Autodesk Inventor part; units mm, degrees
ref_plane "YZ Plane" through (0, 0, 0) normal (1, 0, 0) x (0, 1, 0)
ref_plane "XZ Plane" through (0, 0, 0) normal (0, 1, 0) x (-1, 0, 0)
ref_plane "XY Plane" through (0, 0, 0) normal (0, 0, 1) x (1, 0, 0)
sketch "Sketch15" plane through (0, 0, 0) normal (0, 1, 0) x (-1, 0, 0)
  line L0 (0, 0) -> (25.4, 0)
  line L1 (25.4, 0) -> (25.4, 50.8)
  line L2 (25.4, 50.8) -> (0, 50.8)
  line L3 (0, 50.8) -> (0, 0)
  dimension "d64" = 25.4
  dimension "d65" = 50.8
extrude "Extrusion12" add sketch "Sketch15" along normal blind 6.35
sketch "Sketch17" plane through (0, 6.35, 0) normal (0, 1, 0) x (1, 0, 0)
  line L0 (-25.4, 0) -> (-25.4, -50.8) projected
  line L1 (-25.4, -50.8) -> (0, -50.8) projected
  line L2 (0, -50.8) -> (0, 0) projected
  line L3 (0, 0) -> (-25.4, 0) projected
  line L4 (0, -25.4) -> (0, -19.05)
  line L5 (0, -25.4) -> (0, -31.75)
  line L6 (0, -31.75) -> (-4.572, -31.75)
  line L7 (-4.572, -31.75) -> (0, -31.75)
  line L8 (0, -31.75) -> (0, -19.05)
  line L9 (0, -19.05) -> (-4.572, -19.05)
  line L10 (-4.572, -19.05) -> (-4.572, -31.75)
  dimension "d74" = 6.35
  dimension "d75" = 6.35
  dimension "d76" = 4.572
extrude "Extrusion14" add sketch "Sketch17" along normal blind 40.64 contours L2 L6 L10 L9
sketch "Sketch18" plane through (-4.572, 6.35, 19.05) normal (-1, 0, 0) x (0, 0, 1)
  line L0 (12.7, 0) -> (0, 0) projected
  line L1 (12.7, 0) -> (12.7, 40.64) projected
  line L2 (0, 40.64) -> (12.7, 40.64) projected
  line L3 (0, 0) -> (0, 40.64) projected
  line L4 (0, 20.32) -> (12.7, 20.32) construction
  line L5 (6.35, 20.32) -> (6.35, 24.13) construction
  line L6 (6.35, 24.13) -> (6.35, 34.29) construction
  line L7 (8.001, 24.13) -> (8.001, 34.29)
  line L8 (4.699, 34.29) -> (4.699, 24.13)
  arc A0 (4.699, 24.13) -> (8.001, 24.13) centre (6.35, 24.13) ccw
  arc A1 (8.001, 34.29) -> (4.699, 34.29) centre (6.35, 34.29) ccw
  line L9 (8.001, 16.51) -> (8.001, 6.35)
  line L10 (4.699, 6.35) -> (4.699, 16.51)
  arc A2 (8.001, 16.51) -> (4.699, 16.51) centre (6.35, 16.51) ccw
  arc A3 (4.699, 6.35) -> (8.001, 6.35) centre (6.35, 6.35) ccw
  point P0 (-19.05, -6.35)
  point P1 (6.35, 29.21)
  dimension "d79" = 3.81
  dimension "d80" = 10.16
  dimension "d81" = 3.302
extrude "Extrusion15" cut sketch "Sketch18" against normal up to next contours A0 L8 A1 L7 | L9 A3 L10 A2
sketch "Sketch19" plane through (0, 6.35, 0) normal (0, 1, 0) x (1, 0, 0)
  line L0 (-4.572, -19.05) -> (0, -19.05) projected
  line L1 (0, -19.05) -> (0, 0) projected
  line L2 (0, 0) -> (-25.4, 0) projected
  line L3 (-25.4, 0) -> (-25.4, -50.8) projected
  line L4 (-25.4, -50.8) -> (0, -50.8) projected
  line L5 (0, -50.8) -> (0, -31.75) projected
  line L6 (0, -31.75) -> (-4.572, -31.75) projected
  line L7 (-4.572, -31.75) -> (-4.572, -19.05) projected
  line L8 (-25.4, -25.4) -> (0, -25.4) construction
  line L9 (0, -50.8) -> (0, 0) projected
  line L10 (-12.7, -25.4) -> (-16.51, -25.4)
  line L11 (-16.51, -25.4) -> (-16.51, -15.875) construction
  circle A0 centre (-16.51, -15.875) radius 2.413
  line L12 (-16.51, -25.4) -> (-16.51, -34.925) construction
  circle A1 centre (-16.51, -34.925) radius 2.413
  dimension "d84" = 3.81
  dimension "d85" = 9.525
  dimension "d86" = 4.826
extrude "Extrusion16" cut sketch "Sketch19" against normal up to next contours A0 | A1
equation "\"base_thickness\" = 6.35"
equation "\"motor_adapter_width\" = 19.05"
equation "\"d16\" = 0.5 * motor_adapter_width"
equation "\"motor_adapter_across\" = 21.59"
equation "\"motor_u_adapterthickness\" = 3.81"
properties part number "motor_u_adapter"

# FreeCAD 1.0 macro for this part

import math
import FreeCAD as App
import Part
import Sketcher
from FreeCAD import Vector
Q = App.Units.Quantity

doc = App.newDocument("Part")
body = doc.addObject("PartDesign::Body", "Body")

# Sketch on XZ plane
sketch1 = doc.addObject("Sketcher::SketchObject", "Sketch")
body.addObject(sketch1)
sketch1.AttachmentSupport = (doc.XZ_Plane, [""])
sketch1.MapMode = "FlatFace"
sketch1.addGeometry(Part.LineSegment(Vector(0, 51, 0), Vector(0, 0, 0)), False)
sketch1.addGeometry(Part.LineSegment(Vector(0, 0, 0), Vector(-25, 0, 0)), False)
sketch1.addGeometry(Part.LineSegment(Vector(-25, 0, 0), Vector(-25, 51, 0)), False)
sketch1.addGeometry(Part.LineSegment(Vector(-25, 51, 0), Vector(0, 51, 0)), False)
sketch1.addConstraint(Sketcher.Constraint("Coincident", 0, 2, 1, 1))
sketch1.addConstraint(Sketcher.Constraint("Coincident", 1, 2, 2, 1))
sketch1.addConstraint(Sketcher.Constraint("Coincident", 2, 2, 3, 1))
sketch1.addConstraint(Sketcher.Constraint("Coincident", 3, 2, 0, 1))
sketch1.addConstraint(Sketcher.Constraint("Vertical", 0))
sketch1.addConstraint(Sketcher.Constraint("Horizontal", 1))
sketch1.addConstraint(Sketcher.Constraint("Vertical", 2))
sketch1.addConstraint(Sketcher.Constraint("Horizontal", 3))
sketch1.addConstraint(Sketcher.Constraint("Coincident", 0, 2, -1, 1))
sketch1.addConstraint(Sketcher.Constraint("DistanceX", 1, 2, 1, 1, Q("1 in")))
sketch1.addConstraint(Sketcher.Constraint("DistanceY", 0, 2, 0, 1, Q("2 in")))
pad1 = doc.addObject("PartDesign::Pad", "Pad")
body.addObject(pad1)
pad1.Profile = sketch1
pad1.Length = Q("0.25 in")
pad1.Reversed = True

# Sketch on XZ plane
sketch2 = doc.addObject("Sketcher::SketchObject", "Sketch001")
body.addObject(sketch2)
sketch2.AttachmentSupport = (doc.XZ_Plane, [""])
sketch2.MapMode = "FlatFace"
sketch2.AttachmentOffset = App.Placement(Vector(0, 0, -0.25 * 25.4), App.Rotation())
sketch2.addGeometry(Part.LineSegment(Vector(0, 31.8, 0), Vector(0, 19.1, 0)), False)
sketch2.addGeometry(Part.LineSegment(Vector(0, 19.1, 0), Vector(-4.6, 19.1, 0)), False)
sketch2.addGeometry(Part.LineSegment(Vector(-4.6, 19.1, 0), Vector(-4.6, 31.8, 0)), False)
sketch2.addGeometry(Part.LineSegment(Vector(-4.6, 31.8, 0), Vector(0, 31.8, 0)), False)
sketch2.addConstraint(Sketcher.Constraint("Coincident", 0, 2, 1, 1))
sketch2.addConstraint(Sketcher.Constraint("Coincident", 1, 2, 2, 1))
sketch2.addConstraint(Sketcher.Constraint("Coincident", 2, 2, 3, 1))
sketch2.addConstraint(Sketcher.Constraint("Coincident", 3, 2, 0, 1))
sketch2.addConstraint(Sketcher.Constraint("Vertical", 0))
sketch2.addConstraint(Sketcher.Constraint("Horizontal", 1))
sketch2.addConstraint(Sketcher.Constraint("Vertical", 2))
sketch2.addConstraint(Sketcher.Constraint("Horizontal", 3))
sketch2.addConstraint(Sketcher.Constraint("PointOnObject", 0, 2, -2))
sketch2.addConstraint(Sketcher.Constraint("DistanceX", 1, 2, 1, 1, Q("0.18 in")))
sketch2.addConstraint(Sketcher.Constraint("DistanceY", 0, 2, 0, 1, Q("0.5 in")))
sketch2.addConstraint(Sketcher.Constraint("DistanceY", -1, 1, 0, 2, Q("0.75 in")))
pad2 = doc.addObject("PartDesign::Pad", "Pad001")
body.addObject(pad2)
pad2.Profile = sketch2
pad2.Length = Q("1.6 in")
pad2.Reversed = True

# Sketch on YZ plane
sketch3 = doc.addObject("Sketcher::SketchObject", "Sketch002")
body.addObject(sketch3)
sketch3.AttachmentSupport = (doc.YZ_Plane, [""])
sketch3.MapMode = "FlatFace"
sketch3.AttachmentOffset = App.Placement(Vector(0, 0, -0.18 * 25.4), App.Rotation())
sketch3.addGeometry(Part.ArcOfCircle(Part.Circle(Vector(30.5, 25.4, 0), Vector(0, 0, 1), 1.7), math.radians(90), math.radians(270)), False)
sketch3.addGeometry(Part.LineSegment(Vector(30.5, 27.1, 0), Vector(40.6, 27.1, 0)), False)
sketch3.addGeometry(Part.ArcOfCircle(Part.Circle(Vector(40.6, 25.4, 0), Vector(0, 0, 1), 1.7), math.radians(-90), math.radians(90)), False)
sketch3.addGeometry(Part.LineSegment(Vector(40.6, 23.7, 0), Vector(30.5, 23.7, 0)), False)
sketch3.addGeometry(Part.LineSegment(Vector(12.7, 27.1, 0), Vector(22.9, 27.1, 0)), False)
sketch3.addGeometry(Part.ArcOfCircle(Part.Circle(Vector(22.9, 25.4, 0), Vector(0, 0, 1), 1.7), math.radians(-90), math.radians(90)), False)
sketch3.addGeometry(Part.LineSegment(Vector(22.9, 23.7, 0), Vector(12.7, 23.7, 0)), False)
sketch3.addGeometry(Part.ArcOfCircle(Part.Circle(Vector(12.7, 25.4, 0), Vector(0, 0, 1), 1.7), math.radians(90), math.radians(270)), False)
sketch3.addConstraint(Sketcher.Constraint("Tangent", 0, 1, 1, 1))
sketch3.addConstraint(Sketcher.Constraint("Tangent", 1, 2, 2, 2))
sketch3.addConstraint(Sketcher.Constraint("Tangent", 2, 1, 3, 1))
sketch3.addConstraint(Sketcher.Constraint("Tangent", 3, 2, 0, 2))
sketch3.addConstraint(Sketcher.Constraint("Tangent", 4, 2, 5, 2))
sketch3.addConstraint(Sketcher.Constraint("Tangent", 5, 1, 6, 1))
sketch3.addConstraint(Sketcher.Constraint("Tangent", 6, 2, 7, 2))
sketch3.addConstraint(Sketcher.Constraint("Tangent", 7, 1, 4, 1))
sketch3.addConstraint(Sketcher.Constraint("Horizontal", 1))
sketch3.addConstraint(Sketcher.Constraint("Horizontal", 3))
sketch3.addConstraint(Sketcher.Constraint("Horizontal", 4))
sketch3.addConstraint(Sketcher.Constraint("Horizontal", 6))
sketch3.addConstraint(Sketcher.Constraint("Equal", 2, 5))
sketch3.addConstraint(Sketcher.Constraint("Horizontal", 2, 3, 5, 3))
sketch3.addConstraint(Sketcher.Constraint("Equal", 3, 4))
sketch3.addConstraint(Sketcher.Constraint("DistanceX", 1, 1, 1, 2, Q("0.4 in")))
sketch3.addConstraint(Sketcher.Constraint("Radius", 0, Q("0.065 in")))
sketch3.addConstraint(Sketcher.Constraint("DistanceY", -1, 1, 0, 3, Q("1 in")))
sketch3.addConstraint(Sketcher.Constraint("DistanceX", -1, 1, 0, 3, Q("1.2 in")))
sketch3.addConstraint(Sketcher.Constraint("DistanceX", -1, 1, 5, 3, Q("0.9 in")))
pocket1 = doc.addObject("PartDesign::Pocket", "Pocket")
body.addObject(pocket1)
pocket1.Profile = sketch3
pocket1.Type = "UpToFirst"
pocket1.Reversed = True

# Sketch on XZ plane
sketch4 = doc.addObject("Sketcher::SketchObject", "Sketch003")
body.addObject(sketch4)
sketch4.AttachmentSupport = (doc.XZ_Plane, [""])
sketch4.MapMode = "FlatFace"
sketch4.AttachmentOffset = App.Placement(Vector(0, 0, -0.25 * 25.4), App.Rotation())
sketch4.addGeometry(Part.Circle(Vector(-16.5, 15.9, 0), Vector(0, 0, 1), 2.4), False)
sketch4.addGeometry(Part.Circle(Vector(-16.5, 34.9, 0), Vector(0, 0, 1), 2.4), False)
sketch4.addConstraint(Sketcher.Constraint("Equal", 0, 1))
sketch4.addConstraint(Sketcher.Constraint("Vertical", 0, 3, 1, 3))
sketch4.addConstraint(Sketcher.Constraint("Diameter", 0, Q("0.19 in")))
sketch4.addConstraint(Sketcher.Constraint("DistanceX", 0, 3, -1, 1, Q("0.65 in")))
sketch4.addConstraint(Sketcher.Constraint("DistanceY", 0, 3, 1, 3, Q("0.75 in")))
sketch4.addConstraint(Sketcher.Constraint("DistanceY", -1, 1, 0, 3, Q("0.625 in")))
pocket2 = doc.addObject("PartDesign::Pocket", "Pocket001")
body.addObject(pocket2)
pocket2.Profile = sketch4
pocket2.Type = "UpToFirst"
pocket2.Reversed = True

doc.recompute()
